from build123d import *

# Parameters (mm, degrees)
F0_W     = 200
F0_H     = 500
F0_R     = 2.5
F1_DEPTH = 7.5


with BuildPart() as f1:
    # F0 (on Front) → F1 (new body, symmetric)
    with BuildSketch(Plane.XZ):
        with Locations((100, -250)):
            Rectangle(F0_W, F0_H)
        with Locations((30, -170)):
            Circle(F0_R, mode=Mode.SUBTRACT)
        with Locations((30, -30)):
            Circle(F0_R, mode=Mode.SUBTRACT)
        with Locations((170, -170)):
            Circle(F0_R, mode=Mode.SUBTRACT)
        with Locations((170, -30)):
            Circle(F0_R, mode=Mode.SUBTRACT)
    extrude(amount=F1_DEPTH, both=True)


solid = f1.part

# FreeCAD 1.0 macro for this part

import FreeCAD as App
import Part
import Sketcher
from FreeCAD import Vector
Q = App.Units.Quantity

doc = App.newDocument("Part")
body = doc.addObject("PartDesign::Body", "Body")

# Sketch on XZ plane
sketch1 = body.newObject("Sketcher::SketchObject", "Sketch")
sketch1.AttachmentSupport = (doc.getObject("XZ_Plane"), [""])
sketch1.MapMode = "FlatFace"
sketch1.addGeometry(Part.LineSegment(Vector(0, 0, 0), Vector(0, -500, 0)), False)
sketch1.addGeometry(Part.LineSegment(Vector(0, -500, 0), Vector(200, -500, 0)), False)
sketch1.addGeometry(Part.LineSegment(Vector(200, -500, 0), Vector(200, 0, 0)), False)
sketch1.addGeometry(Part.LineSegment(Vector(200, 0, 0), Vector(0, 0, 0)), False)
sketch1.addGeometry(Part.Circle(Vector(30, -170, 0), Vector(0, 0, 1), 2.5), False)
sketch1.addGeometry(Part.Circle(Vector(170, -170, 0), Vector(0, 0, 1), 2.5), False)
sketch1.addGeometry(Part.Circle(Vector(30, -30, 0), Vector(0, 0, 1), 2.5), False)
sketch1.addGeometry(Part.Circle(Vector(170, -30, 0), Vector(0, 0, 1), 2.5), False)
sketch1.addConstraint(Sketcher.Constraint("Coincident", 0, 2, 1, 1))
sketch1.addConstraint(Sketcher.Constraint("Coincident", 1, 2, 2, 1))
sketch1.addConstraint(Sketcher.Constraint("Coincident", 2, 2, 3, 1))
sketch1.addConstraint(Sketcher.Constraint("Coincident", 3, 2, 0, 1))
sketch1.addConstraint(Sketcher.Constraint("Vertical", 0))
sketch1.addConstraint(Sketcher.Constraint("Horizontal", 1))
sketch1.addConstraint(Sketcher.Constraint("Vertical", 2))
sketch1.addConstraint(Sketcher.Constraint("Horizontal", 3))
sketch1.addConstraint(Sketcher.Constraint("Coincident", 3, 2, -1, 1))
sketch1.addConstraint(Sketcher.Constraint("Equal", 4, 5))
sketch1.addConstraint(Sketcher.Constraint("Equal", 5, 6))
sketch1.addConstraint(Sketcher.Constraint("Equal", 6, 7))
sketch1.addConstraint(Sketcher.Constraint("Horizontal", 4, 3, 5, 3))
sketch1.addConstraint(Sketcher.Constraint("Horizontal", 6, 3, 7, 3))
sketch1.addConstraint(Sketcher.Constraint("Vertical", 4, 3, 6, 3))
sketch1.addConstraint(Sketcher.Constraint("Vertical", 5, 3, 7, 3))
sketch1.addConstraint(Sketcher.Constraint("Diameter", 4, Q("5 mm")))
sketch1.addConstraint(Sketcher.Constraint("DistanceX", 1, 1, 1, 2, Q("200 mm")))
sketch1.addConstraint(Sketcher.Constraint("DistanceY", 0, 2, 0, 1, Q("500 mm")))
sketch1.addConstraint(Sketcher.Constraint("DistanceX", -1, 1, 4, 3, Q("30 mm")))
sketch1.addConstraint(Sketcher.Constraint("DistanceY", 4, 3, -1, 1, Q("170 mm")))
sketch1.addConstraint(Sketcher.Constraint("DistanceX", -1, 1, 5, 3, Q("170 mm")))
sketch1.addConstraint(Sketcher.Constraint("DistanceY", 6, 3, -1, 1, Q("30 mm")))
pad1 = body.newObject("PartDesign::Pad", "Pad")
pad1.Profile = sketch1
pad1.Length = 15
pad1.Midplane = True

doc.recompute()
